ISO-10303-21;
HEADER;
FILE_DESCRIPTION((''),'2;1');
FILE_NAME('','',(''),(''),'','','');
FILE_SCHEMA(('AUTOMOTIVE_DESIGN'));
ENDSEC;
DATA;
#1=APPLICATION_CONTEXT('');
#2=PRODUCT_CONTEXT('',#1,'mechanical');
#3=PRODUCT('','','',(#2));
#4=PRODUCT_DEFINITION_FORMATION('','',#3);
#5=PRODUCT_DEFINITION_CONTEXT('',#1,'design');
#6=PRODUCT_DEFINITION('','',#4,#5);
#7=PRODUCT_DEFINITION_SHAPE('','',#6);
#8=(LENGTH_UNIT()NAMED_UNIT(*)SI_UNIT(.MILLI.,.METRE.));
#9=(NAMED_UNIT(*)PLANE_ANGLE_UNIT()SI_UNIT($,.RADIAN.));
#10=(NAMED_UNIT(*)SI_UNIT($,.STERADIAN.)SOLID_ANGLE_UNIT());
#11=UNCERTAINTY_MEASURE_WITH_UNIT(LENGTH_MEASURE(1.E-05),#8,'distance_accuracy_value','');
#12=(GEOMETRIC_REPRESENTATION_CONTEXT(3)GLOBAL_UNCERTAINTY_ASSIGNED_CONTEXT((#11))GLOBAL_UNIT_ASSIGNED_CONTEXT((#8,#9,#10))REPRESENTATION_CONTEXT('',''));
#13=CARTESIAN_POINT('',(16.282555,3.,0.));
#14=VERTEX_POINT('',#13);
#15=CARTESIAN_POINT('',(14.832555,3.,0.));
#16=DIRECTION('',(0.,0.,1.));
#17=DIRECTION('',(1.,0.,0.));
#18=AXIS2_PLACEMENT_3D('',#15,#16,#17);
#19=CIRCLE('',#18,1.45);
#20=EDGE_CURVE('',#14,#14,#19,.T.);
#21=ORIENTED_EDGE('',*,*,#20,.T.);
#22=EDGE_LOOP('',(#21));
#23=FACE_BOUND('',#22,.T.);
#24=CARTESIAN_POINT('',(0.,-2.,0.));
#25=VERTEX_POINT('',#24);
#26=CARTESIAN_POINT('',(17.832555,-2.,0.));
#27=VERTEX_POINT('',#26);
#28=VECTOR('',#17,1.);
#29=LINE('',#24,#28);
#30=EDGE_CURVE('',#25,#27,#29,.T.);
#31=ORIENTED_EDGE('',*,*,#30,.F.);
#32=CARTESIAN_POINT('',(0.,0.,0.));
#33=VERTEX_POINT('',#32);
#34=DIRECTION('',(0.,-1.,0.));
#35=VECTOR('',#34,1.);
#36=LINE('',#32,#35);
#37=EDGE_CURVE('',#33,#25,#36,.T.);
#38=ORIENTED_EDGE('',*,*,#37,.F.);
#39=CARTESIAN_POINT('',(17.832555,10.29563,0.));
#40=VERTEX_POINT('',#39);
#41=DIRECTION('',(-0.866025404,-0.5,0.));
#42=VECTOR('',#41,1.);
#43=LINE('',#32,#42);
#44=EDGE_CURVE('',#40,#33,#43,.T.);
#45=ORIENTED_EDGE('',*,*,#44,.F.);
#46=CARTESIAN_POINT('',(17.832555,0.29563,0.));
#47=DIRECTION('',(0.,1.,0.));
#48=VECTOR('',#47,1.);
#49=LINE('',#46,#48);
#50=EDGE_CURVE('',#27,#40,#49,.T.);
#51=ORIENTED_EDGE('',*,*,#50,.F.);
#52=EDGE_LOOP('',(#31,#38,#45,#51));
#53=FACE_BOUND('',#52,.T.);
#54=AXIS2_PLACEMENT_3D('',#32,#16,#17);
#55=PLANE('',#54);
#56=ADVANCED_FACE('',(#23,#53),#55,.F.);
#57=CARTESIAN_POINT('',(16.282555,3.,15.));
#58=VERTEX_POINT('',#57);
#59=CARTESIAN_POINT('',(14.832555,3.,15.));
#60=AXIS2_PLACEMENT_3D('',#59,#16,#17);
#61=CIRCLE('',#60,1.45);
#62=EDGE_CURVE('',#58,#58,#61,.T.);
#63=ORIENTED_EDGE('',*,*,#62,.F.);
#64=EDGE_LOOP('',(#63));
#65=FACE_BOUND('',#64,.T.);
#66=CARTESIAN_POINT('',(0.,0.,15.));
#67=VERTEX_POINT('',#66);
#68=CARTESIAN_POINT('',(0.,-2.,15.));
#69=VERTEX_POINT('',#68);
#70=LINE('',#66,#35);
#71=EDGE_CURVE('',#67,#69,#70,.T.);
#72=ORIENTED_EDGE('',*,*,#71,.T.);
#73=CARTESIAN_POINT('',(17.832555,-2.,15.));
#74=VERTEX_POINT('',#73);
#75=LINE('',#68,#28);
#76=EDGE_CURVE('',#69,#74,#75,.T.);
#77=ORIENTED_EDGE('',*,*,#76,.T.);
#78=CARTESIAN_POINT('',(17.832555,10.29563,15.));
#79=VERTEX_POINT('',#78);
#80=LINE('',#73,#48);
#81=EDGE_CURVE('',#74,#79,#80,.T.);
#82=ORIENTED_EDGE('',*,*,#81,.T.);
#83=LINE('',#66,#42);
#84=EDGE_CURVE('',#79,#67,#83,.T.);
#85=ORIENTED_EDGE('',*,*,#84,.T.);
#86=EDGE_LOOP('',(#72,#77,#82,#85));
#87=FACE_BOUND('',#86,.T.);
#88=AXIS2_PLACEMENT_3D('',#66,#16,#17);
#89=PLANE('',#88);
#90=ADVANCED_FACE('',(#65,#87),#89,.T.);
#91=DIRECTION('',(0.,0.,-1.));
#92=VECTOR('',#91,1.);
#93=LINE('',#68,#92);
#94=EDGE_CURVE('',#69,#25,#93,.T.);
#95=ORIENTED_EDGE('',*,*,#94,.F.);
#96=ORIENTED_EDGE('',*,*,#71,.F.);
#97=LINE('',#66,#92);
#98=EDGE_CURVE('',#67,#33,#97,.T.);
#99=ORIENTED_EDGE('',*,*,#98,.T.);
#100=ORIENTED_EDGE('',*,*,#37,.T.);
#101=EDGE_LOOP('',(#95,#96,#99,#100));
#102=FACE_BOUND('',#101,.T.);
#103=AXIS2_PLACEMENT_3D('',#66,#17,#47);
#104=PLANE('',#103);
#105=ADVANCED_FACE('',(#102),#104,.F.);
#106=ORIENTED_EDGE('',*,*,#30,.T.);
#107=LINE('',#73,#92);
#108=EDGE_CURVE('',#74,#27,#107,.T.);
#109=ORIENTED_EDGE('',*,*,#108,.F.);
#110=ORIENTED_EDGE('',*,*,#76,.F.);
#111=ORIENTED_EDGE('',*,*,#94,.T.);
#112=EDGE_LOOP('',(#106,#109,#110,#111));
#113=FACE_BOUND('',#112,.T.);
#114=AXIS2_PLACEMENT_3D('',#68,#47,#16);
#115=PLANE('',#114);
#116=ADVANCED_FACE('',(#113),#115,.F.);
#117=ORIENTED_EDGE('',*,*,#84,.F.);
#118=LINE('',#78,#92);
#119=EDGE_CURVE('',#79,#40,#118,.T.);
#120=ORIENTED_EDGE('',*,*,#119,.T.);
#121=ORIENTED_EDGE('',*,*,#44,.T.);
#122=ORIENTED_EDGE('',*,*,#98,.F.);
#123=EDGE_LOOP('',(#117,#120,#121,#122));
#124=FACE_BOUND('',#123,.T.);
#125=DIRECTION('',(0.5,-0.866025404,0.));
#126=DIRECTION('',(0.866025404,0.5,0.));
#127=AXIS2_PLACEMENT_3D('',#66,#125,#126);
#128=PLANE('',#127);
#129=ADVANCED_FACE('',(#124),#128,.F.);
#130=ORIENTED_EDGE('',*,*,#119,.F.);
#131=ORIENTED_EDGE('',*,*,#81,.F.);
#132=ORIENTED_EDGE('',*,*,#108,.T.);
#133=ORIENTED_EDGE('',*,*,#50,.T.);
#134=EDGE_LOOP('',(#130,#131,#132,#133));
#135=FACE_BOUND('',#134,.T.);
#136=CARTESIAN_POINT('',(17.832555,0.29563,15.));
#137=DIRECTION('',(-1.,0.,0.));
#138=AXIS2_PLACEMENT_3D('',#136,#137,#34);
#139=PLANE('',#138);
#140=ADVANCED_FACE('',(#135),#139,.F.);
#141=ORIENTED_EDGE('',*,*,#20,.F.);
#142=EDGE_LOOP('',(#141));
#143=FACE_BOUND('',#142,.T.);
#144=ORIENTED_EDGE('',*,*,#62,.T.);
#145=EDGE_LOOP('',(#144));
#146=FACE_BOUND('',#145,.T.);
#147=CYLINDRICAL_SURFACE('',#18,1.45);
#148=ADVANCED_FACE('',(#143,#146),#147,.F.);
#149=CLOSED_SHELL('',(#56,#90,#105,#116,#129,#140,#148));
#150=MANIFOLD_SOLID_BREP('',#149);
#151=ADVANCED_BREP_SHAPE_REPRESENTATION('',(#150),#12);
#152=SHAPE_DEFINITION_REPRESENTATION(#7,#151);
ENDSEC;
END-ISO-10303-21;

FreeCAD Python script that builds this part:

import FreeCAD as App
import Part
import Sketcher
Q = App.Units.Quantity

doc = App.newDocument("Part")
body = doc.addObject("PartDesign::Body", "Body")

# Sketch on XY plane
sketch1 = body.newObject("Sketcher::SketchObject", "Sketch")
sketch1.AttachmentSupport = (doc.getObject("XY_Plane"), [""])
sketch1.MapMode = "FlatFace"
sketch1.addGeometry(Part.LineSegment(App.Vector(17.832555, 10.29563, 0), App.Vector(0, 0, 0)), False)
sketch1.addGeometry(Part.LineSegment(App.Vector(0, 0, 0), App.Vector(0, -2, 0)), False)
sketch1.addGeometry(Part.LineSegment(App.Vector(0, -2, 0), App.Vector(17.832555, -2, 0)), False)
sketch1.addGeometry(Part.LineSegment(App.Vector(17.832555, -2, 0), App.Vector(17.832555, 10.29563, 0)), False)
sketch1.addConstraint(Sketcher.Constraint("Coincident", 0, 2, 1, 1))
sketch1.addConstraint(Sketcher.Constraint("Coincident", 1, 2, 2, 1))
sketch1.addConstraint(Sketcher.Constraint("Coincident", 2, 2, 3, 1))
sketch1.addConstraint(Sketcher.Constraint("Coincident", 3, 2, 0, 1))
sketch1.addConstraint(Sketcher.Constraint("Vertical", 1))
sketch1.addConstraint(Sketcher.Constraint("Horizontal", 2))
sketch1.addConstraint(Sketcher.Constraint("Vertical", 3))
sketch1.addConstraint(Sketcher.Constraint("Coincident", 0, 2, -1, 1))
sketch1.addConstraint(Sketcher.Constraint("DistanceY", 1, 2, 1, 1, Q("2 mm")))
sketch1.addConstraint(Sketcher.Constraint("Angle", 0, Q("-150 deg")))
sketch1.addConstraint(Sketcher.Constraint("DistanceY", 3, 1, 3, 2, Q("12.29563 mm")))
pad1 = body.newObject("PartDesign::Pad", "Pad")
pad1.Profile = sketch1
pad1.Length = 15

# Sketch on XY plane
sketch2 = body.newObject("Sketcher::SketchObject", "Sketch001")
sketch2.AttachmentSupport = (doc.getObject("XY_Plane"), [""])
sketch2.MapMode = "FlatFace"
sketch2.AttachmentOffset = App.Placement(App.Vector(0, 0, 15), App.Rotation())
sketch2.addGeometry(Part.Circle(App.Vector(14.832555, 3, 0), App.Vector(0, 0, 1), 1.45), False)
sketch2.addConstraint(Sketcher.Constraint("Diameter", 0, Q("2.9 mm")))
sketch2.addConstraint(Sketcher.Constraint("DistanceY", -1, 1, 0, 3, Q("3 mm")))
sketch2.addConstraint(Sketcher.Constraint("DistanceX", -1, 1, 0, 3, Q("14.832555 mm")))
pocket1 = body.newObject("PartDesign::Pocket", "Pocket")
pocket1.Profile = sketch2
pocket1.Type = "ThroughAll"
pocket1.Midplane = True

doc.recompute()
